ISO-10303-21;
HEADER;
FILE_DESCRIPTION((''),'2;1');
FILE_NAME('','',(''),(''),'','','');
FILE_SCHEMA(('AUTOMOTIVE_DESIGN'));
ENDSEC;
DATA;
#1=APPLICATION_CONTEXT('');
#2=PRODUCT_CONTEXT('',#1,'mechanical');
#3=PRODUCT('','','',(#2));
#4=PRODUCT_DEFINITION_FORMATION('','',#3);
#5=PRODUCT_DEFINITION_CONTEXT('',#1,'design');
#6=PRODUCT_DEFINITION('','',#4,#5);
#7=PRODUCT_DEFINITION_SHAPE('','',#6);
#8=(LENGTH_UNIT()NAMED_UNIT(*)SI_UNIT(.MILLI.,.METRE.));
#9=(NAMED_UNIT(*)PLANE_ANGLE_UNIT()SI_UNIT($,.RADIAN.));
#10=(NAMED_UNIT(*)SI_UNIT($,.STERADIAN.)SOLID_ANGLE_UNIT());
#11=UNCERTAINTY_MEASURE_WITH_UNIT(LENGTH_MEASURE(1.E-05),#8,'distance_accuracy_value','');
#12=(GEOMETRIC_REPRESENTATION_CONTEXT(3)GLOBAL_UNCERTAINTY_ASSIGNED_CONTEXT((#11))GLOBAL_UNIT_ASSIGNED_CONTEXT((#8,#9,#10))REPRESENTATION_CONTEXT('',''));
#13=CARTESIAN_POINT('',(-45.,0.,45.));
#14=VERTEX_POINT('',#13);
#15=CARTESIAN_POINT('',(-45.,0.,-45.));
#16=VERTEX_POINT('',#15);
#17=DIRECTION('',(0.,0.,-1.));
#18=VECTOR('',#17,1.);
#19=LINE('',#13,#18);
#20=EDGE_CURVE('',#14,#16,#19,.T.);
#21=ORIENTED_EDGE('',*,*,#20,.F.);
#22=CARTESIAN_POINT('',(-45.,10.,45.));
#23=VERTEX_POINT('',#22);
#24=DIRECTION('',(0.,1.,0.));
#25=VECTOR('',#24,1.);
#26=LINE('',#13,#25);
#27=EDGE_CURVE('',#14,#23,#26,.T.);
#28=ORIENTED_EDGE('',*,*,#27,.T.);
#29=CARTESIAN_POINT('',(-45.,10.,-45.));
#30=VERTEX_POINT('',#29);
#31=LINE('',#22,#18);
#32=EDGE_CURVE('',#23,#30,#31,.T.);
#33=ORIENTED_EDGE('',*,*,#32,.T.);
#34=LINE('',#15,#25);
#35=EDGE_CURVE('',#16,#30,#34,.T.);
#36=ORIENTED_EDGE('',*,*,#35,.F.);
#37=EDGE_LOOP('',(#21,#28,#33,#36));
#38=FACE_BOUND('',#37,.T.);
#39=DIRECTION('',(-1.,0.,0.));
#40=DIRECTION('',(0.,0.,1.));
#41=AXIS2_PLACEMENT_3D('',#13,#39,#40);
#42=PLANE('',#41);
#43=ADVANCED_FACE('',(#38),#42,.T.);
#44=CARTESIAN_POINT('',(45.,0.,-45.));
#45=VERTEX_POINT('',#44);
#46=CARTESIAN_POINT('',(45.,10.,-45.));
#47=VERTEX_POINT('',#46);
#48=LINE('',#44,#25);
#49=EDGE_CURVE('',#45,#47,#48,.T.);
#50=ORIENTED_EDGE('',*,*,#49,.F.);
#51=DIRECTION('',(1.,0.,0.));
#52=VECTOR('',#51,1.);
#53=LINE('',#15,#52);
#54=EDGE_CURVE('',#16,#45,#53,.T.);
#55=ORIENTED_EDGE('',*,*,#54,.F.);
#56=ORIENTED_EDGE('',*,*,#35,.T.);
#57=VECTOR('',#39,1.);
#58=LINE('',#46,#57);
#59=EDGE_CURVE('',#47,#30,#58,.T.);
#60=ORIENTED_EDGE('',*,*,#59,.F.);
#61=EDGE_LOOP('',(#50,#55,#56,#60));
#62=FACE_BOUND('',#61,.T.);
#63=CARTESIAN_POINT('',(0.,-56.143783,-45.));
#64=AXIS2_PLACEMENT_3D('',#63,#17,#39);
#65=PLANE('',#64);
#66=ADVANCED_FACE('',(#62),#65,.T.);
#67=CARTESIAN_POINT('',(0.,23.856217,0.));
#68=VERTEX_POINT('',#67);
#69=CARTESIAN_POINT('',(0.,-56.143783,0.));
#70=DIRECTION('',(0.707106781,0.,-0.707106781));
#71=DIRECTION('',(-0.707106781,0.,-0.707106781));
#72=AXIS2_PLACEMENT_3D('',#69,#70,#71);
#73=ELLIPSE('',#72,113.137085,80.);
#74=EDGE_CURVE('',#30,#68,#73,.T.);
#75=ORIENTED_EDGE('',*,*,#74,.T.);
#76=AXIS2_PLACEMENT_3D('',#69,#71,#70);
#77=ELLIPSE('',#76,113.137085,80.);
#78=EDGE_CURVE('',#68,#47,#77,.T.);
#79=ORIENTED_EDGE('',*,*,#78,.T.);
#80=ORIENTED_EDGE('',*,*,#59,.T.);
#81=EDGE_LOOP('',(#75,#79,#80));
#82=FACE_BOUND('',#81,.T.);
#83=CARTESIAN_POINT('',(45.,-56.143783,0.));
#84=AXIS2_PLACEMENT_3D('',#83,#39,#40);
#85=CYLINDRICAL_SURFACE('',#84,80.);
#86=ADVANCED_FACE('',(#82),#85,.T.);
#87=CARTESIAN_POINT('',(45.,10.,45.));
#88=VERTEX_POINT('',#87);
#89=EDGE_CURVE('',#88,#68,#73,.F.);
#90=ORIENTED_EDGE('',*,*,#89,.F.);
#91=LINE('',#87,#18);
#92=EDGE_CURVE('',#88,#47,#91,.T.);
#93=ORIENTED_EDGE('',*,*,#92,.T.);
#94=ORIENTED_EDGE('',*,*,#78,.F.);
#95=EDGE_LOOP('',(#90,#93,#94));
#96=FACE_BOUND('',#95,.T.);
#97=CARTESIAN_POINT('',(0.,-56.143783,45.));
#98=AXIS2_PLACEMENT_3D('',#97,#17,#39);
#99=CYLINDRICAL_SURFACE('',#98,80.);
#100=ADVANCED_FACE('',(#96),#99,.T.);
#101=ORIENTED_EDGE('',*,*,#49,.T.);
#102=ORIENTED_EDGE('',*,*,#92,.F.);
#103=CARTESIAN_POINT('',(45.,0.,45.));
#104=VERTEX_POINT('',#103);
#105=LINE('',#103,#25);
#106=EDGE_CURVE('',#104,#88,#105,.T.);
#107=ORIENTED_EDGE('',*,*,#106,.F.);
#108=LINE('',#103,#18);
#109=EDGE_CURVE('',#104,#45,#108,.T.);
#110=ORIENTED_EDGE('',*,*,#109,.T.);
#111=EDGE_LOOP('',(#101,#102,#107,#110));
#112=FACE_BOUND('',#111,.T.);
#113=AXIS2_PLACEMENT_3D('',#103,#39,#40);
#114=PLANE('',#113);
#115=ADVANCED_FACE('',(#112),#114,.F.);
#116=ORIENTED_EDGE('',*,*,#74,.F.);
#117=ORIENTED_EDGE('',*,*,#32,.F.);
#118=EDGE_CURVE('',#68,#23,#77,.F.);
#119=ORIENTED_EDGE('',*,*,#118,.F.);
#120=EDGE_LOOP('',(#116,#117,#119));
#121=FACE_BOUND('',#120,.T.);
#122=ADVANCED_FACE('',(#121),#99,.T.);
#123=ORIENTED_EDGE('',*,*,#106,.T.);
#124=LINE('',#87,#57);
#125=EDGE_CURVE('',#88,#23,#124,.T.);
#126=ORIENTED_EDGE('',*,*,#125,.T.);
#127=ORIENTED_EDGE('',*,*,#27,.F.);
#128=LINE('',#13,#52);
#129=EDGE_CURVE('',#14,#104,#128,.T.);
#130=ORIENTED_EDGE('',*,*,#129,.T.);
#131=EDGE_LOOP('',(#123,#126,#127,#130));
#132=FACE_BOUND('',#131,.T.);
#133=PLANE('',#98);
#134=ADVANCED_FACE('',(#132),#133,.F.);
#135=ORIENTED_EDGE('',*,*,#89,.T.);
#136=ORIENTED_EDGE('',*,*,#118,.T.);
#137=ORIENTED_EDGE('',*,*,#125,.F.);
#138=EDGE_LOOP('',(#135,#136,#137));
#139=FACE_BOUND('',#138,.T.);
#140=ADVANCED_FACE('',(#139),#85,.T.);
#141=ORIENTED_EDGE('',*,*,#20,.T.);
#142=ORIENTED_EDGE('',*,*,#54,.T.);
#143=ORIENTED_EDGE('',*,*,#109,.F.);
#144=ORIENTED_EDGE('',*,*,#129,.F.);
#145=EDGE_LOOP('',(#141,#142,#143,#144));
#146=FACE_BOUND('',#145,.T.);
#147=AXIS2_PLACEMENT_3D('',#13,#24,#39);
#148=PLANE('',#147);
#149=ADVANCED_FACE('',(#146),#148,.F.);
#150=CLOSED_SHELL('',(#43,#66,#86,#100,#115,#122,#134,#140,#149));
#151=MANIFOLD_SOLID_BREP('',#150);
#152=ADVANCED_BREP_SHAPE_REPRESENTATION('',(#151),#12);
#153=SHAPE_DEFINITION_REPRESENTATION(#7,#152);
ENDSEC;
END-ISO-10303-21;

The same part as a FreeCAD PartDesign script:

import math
import FreeCAD as App
import Part
import Sketcher

doc = App.newDocument("Part")
body = doc.addObject("PartDesign::Body", "Body")

sketch1 = doc.addObject("Sketcher::SketchObject", "Sketch")
body.addObject(sketch1)
sketch1.AttachmentSupport = (doc.XY_Plane, [""])
sketch1.MapMode = "FlatFace"
sketch1.addGeometry([
    Part.LineSegment(App.Vector(-45, 0, 0), App.Vector(45, 0, 0)),
    Part.LineSegment(App.Vector(45, 0, 0), App.Vector(45, 10, 0)),
    Part.ArcOfCircle(Part.Circle(App.Vector(0, -56, 0), App.Vector(0, 0, 1), 80), math.radians(56), math.radians(124)),
    Part.LineSegment(App.Vector(-45, 10, 0), App.Vector(-45, 0, 0)),
], False)
sketch1.addConstraint([
    Sketcher.Constraint("Coincident", 0, 2, 1, 1),
    Sketcher.Constraint("Coincident", 1, 2, 2, 1),
    Sketcher.Constraint("Coincident", 2, 2, 3, 1),
    Sketcher.Constraint("Coincident", 3, 2, 0, 1),
    Sketcher.Constraint("Horizontal", 0),
    Sketcher.Constraint("Vertical", 1),
    Sketcher.Constraint("Vertical", 3),
    Sketcher.Constraint("Symmetric", 0, 2, 3, 2, -1, 1),
    Sketcher.Constraint("PointOnObject", 2, 3, -2),
    Sketcher.Constraint("Radius", 2, 80.0),
    Sketcher.Constraint("DistanceX", 0, 1, 0, 2, 90.0),
    Sketcher.Constraint("DistanceY", 1, 1, 1, 2, 10.0),
])
pad1 = doc.addObject("PartDesign::Pad", "Pad")
body.addObject(pad1)
pad1.Profile = sketch1
pad1.Length = 90
pad1.Midplane = True
body2 = doc.addObject("PartDesign::Body", "Body001")

sketch2 = doc.addObject("Sketcher::SketchObject", "Sketch001")
body2.addObject(sketch2)
sketch2.AttachmentSupport = (doc.getObject("YZ_Plane001"), [""])
sketch2.MapMode = "FlatFace"
sketch2.addGeometry([
    Part.LineSegment(App.Vector(0, 45, 0), App.Vector(0, -45, 0)),
    Part.LineSegment(App.Vector(0, -45, 0), App.Vector(10, -45, 0)),
    Part.ArcOfCircle(Part.Circle(App.Vector(-56, 0, 0), App.Vector(0, 0, 1), 80), math.radians(-34), math.radians(34)),
    Part.LineSegment(App.Vector(10, 45, 0), App.Vector(0, 45, 0)),
], False)
sketch2.addConstraint([
    Sketcher.Constraint("Coincident", 0, 2, 1, 1),
    Sketcher.Constraint("Coincident", 1, 2, 2, 1),
    Sketcher.Constraint("Coincident", 2, 2, 3, 1),
    Sketcher.Constraint("Coincident", 3, 2, 0, 1),
    Sketcher.Constraint("Vertical", 0),
    Sketcher.Constraint("Horizontal", 1),
    Sketcher.Constraint("Horizontal", 3),
    Sketcher.Constraint("Symmetric", 0, 2, 3, 2, -1, 1),
    Sketcher.Constraint("PointOnObject", 2, 3, -1),
    Sketcher.Constraint("Radius", 2, 80.0),
    Sketcher.Constraint("DistanceX", 1, 1, 1, 2, 10.0),
    Sketcher.Constraint("DistanceY", 0, 2, 0, 1, 90.0),
])
pad2 = doc.addObject("PartDesign::Pad", "Pad001")
body2.addObject(pad2)
pad2.Profile = sketch2
pad2.Length = 90
pad2.Midplane = True
doc.recompute()

boolean = doc.addObject("PartDesign::Boolean", "Boolean")
body.addObject(boolean)
boolean.Type = "Common"
boolean.addObjects([body2])

doc.recompute()
